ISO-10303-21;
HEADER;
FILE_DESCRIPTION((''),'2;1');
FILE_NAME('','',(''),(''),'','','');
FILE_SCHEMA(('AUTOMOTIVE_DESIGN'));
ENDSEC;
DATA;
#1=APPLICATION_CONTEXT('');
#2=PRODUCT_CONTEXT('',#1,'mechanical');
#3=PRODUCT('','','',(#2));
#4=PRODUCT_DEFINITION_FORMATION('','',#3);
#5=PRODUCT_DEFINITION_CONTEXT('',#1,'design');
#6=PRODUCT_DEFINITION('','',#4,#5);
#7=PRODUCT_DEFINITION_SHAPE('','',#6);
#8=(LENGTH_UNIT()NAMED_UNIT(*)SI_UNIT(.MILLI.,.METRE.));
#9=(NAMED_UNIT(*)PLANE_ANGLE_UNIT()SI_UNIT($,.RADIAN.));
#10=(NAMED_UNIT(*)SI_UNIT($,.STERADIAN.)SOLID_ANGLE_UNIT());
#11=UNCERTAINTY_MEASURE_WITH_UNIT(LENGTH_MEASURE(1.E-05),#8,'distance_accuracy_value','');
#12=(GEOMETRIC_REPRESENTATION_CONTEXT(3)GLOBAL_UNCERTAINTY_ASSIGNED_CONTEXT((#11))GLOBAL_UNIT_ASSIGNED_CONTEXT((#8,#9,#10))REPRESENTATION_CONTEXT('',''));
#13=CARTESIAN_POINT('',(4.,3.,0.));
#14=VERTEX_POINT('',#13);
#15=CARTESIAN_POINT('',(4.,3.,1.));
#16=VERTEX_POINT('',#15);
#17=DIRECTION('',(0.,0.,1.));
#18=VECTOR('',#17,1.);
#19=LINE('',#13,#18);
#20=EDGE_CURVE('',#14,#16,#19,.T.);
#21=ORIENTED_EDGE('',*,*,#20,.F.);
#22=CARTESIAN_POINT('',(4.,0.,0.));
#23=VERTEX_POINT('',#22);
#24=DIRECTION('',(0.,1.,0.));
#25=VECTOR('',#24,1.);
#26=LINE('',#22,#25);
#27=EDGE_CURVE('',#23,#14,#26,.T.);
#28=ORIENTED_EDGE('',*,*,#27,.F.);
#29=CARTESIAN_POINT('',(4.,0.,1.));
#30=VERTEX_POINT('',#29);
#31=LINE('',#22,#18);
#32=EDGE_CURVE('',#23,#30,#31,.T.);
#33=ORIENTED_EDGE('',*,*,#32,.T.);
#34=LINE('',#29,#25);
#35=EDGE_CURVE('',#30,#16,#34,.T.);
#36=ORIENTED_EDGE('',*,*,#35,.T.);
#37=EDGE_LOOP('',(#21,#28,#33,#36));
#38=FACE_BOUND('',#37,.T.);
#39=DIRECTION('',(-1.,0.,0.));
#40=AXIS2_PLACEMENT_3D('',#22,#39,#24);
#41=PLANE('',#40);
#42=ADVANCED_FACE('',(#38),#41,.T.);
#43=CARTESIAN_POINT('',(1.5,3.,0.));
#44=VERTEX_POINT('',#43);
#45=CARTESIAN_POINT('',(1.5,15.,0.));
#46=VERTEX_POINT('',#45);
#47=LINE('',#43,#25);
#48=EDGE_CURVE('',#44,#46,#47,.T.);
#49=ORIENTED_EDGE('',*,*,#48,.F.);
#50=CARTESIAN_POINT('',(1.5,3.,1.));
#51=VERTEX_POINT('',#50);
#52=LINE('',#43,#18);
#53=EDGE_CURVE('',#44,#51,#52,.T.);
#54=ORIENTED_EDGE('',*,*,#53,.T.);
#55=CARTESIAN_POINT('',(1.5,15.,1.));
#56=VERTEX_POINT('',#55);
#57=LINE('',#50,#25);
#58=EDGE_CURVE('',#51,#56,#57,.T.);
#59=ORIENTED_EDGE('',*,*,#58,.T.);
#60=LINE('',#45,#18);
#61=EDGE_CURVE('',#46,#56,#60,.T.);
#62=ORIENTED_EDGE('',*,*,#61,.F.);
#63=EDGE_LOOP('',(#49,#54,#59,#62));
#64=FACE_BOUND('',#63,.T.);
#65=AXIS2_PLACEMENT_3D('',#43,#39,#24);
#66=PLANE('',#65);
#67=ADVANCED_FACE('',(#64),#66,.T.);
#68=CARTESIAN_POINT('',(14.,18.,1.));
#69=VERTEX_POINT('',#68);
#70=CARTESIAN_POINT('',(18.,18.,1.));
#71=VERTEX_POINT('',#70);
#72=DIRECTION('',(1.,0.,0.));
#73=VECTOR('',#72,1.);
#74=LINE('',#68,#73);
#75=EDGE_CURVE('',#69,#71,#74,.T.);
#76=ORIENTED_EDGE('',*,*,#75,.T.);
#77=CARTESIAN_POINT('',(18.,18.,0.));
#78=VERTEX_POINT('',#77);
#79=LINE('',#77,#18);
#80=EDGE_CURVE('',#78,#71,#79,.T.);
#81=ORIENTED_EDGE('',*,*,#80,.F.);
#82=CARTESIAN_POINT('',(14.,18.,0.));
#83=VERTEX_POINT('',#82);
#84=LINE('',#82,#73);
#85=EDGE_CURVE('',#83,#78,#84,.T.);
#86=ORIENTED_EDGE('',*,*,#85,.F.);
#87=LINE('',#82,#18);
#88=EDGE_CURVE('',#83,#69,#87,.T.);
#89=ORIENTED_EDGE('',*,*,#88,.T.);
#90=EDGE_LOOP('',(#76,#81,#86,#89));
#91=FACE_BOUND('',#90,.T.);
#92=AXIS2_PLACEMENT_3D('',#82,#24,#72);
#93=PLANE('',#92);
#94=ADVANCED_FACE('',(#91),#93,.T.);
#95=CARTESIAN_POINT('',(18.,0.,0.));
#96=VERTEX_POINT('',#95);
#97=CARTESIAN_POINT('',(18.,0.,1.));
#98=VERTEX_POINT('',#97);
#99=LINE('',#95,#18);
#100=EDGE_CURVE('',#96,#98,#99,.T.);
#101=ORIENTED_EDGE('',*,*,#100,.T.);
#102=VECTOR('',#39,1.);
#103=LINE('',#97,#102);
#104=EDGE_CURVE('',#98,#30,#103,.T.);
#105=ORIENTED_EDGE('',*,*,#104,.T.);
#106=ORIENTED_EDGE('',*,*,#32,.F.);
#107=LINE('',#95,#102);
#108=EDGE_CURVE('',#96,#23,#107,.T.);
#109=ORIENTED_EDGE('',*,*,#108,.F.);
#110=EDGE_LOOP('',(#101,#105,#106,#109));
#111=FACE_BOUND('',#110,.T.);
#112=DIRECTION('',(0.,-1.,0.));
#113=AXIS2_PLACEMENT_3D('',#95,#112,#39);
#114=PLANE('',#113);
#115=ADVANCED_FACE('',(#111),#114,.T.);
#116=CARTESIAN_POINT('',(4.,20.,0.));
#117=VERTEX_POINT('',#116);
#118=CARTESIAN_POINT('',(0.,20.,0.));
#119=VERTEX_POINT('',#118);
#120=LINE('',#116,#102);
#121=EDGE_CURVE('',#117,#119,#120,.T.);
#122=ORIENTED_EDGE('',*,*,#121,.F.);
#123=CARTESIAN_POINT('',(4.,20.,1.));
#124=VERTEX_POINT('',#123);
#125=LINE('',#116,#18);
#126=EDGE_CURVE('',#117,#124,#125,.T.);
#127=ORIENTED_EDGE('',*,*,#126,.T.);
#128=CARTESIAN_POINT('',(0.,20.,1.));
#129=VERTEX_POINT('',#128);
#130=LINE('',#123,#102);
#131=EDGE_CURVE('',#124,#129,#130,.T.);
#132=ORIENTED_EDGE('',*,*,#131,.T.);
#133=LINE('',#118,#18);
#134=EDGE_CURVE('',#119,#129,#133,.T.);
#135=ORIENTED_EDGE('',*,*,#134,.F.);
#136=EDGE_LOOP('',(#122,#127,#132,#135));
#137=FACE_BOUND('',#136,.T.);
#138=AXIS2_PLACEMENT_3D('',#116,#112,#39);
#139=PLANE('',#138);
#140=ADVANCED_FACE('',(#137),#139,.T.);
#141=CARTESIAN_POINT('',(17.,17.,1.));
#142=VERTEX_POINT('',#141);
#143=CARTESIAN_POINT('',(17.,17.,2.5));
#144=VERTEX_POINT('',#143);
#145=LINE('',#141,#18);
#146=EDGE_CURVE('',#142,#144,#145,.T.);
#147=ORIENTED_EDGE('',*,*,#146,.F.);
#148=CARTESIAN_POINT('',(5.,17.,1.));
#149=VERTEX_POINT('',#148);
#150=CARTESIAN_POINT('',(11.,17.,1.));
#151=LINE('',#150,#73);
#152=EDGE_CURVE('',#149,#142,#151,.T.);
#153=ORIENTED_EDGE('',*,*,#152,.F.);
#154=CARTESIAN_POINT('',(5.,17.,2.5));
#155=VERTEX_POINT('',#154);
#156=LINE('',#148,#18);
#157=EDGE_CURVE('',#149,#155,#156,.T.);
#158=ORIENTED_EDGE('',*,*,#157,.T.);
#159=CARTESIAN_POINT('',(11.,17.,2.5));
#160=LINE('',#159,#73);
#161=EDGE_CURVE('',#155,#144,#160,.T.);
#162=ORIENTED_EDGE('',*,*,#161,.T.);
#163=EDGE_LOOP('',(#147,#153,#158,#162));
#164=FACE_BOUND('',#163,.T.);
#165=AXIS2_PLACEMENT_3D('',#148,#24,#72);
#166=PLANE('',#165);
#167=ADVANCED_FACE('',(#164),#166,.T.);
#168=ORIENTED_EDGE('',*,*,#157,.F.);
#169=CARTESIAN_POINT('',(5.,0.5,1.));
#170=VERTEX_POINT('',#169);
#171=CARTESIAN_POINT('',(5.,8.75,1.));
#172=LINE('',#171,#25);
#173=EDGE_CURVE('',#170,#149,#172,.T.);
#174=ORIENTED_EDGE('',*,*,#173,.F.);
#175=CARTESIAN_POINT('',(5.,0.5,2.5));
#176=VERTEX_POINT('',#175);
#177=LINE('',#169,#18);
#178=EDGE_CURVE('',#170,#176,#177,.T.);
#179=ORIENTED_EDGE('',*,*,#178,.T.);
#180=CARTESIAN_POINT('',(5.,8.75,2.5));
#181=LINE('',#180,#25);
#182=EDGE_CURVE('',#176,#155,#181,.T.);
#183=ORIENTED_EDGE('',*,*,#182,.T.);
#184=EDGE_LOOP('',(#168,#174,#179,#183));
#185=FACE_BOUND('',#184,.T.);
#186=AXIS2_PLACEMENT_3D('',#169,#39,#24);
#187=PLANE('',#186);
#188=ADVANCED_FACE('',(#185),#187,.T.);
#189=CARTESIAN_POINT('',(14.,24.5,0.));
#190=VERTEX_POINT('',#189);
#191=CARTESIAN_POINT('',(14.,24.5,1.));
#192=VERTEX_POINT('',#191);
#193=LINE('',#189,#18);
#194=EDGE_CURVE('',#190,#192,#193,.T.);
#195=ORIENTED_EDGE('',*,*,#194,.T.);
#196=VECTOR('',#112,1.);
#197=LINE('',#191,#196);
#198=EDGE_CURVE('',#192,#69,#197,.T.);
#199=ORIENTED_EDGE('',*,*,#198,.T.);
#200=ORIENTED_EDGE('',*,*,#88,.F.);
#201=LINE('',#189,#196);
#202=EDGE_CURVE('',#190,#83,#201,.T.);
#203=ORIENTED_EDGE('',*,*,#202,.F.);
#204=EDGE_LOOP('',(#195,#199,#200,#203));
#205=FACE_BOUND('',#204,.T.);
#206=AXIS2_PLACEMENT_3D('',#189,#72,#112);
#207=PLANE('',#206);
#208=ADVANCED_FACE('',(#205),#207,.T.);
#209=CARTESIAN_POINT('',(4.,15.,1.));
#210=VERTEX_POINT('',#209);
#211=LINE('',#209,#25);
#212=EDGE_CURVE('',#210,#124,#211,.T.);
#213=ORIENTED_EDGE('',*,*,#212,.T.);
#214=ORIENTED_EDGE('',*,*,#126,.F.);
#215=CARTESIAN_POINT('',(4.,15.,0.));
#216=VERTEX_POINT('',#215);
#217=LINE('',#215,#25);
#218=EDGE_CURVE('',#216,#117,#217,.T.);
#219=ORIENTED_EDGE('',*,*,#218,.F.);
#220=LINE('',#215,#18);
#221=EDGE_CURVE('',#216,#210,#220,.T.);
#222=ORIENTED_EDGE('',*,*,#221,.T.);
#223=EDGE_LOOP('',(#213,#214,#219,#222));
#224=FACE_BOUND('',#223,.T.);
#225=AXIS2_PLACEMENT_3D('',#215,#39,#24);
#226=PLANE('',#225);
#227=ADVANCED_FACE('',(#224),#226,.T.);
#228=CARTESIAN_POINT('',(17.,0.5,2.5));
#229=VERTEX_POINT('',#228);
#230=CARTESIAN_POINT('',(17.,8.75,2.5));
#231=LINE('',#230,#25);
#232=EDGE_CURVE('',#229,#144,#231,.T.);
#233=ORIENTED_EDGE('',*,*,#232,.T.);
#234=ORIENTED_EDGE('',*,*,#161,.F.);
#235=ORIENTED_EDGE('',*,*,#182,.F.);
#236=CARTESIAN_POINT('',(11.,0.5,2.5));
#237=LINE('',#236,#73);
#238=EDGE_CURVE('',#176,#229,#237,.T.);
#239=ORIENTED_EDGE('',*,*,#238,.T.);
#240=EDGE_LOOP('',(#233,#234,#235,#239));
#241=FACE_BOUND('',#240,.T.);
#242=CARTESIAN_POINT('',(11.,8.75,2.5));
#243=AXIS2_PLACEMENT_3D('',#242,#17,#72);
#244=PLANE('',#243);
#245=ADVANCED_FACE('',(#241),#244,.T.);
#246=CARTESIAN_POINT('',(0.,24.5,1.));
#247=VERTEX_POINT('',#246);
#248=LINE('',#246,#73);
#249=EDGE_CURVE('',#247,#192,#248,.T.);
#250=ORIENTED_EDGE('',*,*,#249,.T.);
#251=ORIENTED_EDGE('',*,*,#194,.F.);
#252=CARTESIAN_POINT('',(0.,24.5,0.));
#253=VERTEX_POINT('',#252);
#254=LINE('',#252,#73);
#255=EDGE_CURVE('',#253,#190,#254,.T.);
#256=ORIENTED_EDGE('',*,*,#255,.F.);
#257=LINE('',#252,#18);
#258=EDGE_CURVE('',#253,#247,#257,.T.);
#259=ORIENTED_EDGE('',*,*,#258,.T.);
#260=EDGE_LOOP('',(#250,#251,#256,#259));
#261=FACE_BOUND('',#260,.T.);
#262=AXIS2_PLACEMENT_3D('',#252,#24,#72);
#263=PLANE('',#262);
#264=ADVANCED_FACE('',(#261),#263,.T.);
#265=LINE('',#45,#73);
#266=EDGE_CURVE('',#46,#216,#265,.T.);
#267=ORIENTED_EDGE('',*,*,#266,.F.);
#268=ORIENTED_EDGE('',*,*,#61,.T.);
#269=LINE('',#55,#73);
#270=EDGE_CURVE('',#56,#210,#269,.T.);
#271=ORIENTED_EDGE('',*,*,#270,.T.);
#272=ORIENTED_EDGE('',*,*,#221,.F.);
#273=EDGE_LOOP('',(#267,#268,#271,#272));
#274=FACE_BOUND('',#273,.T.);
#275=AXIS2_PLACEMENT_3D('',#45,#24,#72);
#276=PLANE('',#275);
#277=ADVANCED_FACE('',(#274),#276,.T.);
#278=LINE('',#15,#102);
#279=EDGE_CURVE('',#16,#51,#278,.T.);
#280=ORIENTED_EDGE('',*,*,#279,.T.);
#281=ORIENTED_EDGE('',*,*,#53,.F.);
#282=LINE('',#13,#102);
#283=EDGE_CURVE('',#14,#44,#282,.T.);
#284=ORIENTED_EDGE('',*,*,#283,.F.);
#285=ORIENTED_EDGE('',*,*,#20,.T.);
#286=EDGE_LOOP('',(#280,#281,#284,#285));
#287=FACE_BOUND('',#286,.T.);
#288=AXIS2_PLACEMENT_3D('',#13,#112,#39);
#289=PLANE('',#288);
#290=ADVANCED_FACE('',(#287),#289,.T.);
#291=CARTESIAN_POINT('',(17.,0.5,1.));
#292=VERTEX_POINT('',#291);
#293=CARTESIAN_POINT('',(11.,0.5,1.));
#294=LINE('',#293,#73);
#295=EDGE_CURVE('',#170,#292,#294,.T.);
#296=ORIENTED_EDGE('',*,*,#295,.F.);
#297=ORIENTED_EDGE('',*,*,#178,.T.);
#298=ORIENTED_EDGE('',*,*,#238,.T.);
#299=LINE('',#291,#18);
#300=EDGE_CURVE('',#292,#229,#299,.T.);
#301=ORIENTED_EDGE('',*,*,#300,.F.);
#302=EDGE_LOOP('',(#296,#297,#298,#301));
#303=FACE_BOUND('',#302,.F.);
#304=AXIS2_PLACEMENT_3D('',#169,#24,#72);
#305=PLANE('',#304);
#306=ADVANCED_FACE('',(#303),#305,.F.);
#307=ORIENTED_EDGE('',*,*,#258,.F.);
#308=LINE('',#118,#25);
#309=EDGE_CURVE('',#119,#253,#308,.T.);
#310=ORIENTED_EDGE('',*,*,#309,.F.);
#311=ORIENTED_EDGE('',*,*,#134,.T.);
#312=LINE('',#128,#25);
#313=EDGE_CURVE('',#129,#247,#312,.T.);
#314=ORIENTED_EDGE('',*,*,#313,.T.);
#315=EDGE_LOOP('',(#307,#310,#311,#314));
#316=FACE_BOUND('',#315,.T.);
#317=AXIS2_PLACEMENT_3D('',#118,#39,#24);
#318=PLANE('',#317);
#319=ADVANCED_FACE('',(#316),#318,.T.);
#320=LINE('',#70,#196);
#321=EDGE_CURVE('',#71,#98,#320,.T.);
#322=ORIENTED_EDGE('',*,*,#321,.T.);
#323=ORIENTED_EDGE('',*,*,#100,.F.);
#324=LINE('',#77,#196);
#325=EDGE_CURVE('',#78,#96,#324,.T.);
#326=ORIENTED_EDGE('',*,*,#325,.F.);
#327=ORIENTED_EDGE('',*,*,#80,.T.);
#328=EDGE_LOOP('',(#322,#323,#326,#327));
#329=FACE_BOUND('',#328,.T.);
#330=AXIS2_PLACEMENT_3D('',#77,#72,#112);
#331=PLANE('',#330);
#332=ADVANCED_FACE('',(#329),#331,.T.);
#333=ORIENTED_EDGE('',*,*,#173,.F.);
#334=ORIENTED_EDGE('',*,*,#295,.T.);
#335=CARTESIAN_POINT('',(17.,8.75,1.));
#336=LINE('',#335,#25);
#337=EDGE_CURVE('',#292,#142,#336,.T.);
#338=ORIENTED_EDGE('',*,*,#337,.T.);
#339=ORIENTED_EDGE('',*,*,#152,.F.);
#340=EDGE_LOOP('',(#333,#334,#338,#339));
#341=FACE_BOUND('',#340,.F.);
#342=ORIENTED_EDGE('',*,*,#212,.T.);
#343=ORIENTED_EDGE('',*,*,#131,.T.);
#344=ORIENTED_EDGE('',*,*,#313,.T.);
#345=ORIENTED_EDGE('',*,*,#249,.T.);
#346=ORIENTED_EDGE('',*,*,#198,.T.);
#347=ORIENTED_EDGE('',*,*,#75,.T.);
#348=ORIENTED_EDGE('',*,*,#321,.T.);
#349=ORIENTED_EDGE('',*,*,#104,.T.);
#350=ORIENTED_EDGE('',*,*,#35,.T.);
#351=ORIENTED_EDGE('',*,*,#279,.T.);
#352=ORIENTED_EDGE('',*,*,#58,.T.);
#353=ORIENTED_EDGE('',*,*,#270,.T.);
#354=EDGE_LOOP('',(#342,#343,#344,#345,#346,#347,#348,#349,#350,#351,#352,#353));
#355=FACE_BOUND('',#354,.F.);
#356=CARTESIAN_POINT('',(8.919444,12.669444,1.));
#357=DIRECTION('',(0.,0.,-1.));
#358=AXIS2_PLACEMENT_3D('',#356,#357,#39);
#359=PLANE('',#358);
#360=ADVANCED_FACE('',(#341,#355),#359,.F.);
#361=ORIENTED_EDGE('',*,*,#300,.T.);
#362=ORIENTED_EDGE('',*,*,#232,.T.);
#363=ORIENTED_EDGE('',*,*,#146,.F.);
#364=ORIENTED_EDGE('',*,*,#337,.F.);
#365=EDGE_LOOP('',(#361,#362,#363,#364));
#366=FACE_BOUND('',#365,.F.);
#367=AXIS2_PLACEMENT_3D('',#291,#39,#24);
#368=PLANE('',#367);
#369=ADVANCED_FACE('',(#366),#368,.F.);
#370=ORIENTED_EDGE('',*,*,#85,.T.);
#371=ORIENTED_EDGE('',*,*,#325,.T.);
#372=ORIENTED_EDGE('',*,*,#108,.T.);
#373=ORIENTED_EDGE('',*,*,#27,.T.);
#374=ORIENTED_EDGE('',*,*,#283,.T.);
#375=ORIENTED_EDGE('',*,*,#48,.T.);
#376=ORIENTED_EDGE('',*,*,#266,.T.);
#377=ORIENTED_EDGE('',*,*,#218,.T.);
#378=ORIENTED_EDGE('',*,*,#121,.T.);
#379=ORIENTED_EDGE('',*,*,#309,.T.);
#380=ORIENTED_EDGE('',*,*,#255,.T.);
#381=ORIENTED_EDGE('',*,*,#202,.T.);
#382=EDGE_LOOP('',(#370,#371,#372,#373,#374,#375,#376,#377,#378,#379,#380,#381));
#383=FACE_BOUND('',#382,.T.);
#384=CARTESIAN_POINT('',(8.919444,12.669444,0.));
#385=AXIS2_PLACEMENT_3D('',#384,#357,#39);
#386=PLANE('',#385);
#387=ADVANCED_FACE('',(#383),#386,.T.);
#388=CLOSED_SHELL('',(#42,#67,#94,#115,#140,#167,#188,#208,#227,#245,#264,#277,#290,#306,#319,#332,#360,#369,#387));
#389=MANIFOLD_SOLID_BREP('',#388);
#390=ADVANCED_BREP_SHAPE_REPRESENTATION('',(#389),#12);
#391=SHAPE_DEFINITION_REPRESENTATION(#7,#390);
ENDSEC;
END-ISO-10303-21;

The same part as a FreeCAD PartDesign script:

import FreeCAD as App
import Part
import Sketcher
from FreeCAD import Vector

doc = App.newDocument("Part")
body = doc.addObject("PartDesign::Body", "Body")

sketch1 = body.newObject("Sketcher::SketchObject", "Sketch")
sketch1.AttachmentSupport = (doc.getObject("XY_Plane"), [""])
sketch1.MapMode = "FlatFace"
sketch1.addGeometry(Part.LineSegment(Vector(14, 24.5, 0), Vector(0, 24.5, 0)), False)
sketch1.addGeometry(Part.LineSegment(Vector(0, 24.5, 0), Vector(0, 20, 0)), False)
sketch1.addGeometry(Part.LineSegment(Vector(0, 20, 0), Vector(4, 20, 0)), False)
sketch1.addGeometry(Part.LineSegment(Vector(4, 20, 0), Vector(4, 15, 0)), False)
sketch1.addGeometry(Part.LineSegment(Vector(4, 15, 0), Vector(1.5, 15, 0)), False)
sketch1.addGeometry(Part.LineSegment(Vector(1.5, 15, 0), Vector(1.5, 3, 0)), False)
sketch1.addGeometry(Part.LineSegment(Vector(1.5, 3, 0), Vector(4, 3, 0)), False)
sketch1.addGeometry(Part.LineSegment(Vector(4, 3, 0), Vector(4, 0, 0)), False)
sketch1.addGeometry(Part.LineSegment(Vector(4, 0, 0), Vector(18, 0, 0)), False)
sketch1.addGeometry(Part.LineSegment(Vector(18, 0, 0), Vector(18, 18, 0)), False)
sketch1.addGeometry(Part.LineSegment(Vector(18, 18, 0), Vector(14, 18, 0)), False)
sketch1.addGeometry(Part.LineSegment(Vector(14, 18, 0), Vector(14, 24.5, 0)), False)
sketch1.addConstraint(Sketcher.Constraint("Coincident", 0, 2, 1, 1))
sketch1.addConstraint(Sketcher.Constraint("Coincident", 1, 2, 2, 1))
sketch1.addConstraint(Sketcher.Constraint("Coincident", 2, 2, 3, 1))
sketch1.addConstraint(Sketcher.Constraint("Coincident", 3, 2, 4, 1))
sketch1.addConstraint(Sketcher.Constraint("Coincident", 4, 2, 5, 1))
sketch1.addConstraint(Sketcher.Constraint("Coincident", 5, 2, 6, 1))
sketch1.addConstraint(Sketcher.Constraint("Coincident", 6, 2, 7, 1))
sketch1.addConstraint(Sketcher.Constraint("Coincident", 7, 2, 8, 1))
sketch1.addConstraint(Sketcher.Constraint("Coincident", 8, 2, 9, 1))
sketch1.addConstraint(Sketcher.Constraint("Coincident", 9, 2, 10, 1))
sketch1.addConstraint(Sketcher.Constraint("Coincident", 10, 2, 11, 1))
sketch1.addConstraint(Sketcher.Constraint("Coincident", 11, 2, 0, 1))
sketch1.addConstraint(Sketcher.Constraint("Horizontal", 0))
sketch1.addConstraint(Sketcher.Constraint("Vertical", 1))
sketch1.addConstraint(Sketcher.Constraint("Horizontal", 2))
sketch1.addConstraint(Sketcher.Constraint("Vertical", 3))
sketch1.addConstraint(Sketcher.Constraint("Horizontal", 4))
sketch1.addConstraint(Sketcher.Constraint("Vertical", 5))
sketch1.addConstraint(Sketcher.Constraint("Horizontal", 6))
sketch1.addConstraint(Sketcher.Constraint("Vertical", 7))
sketch1.addConstraint(Sketcher.Constraint("Horizontal", 8))
sketch1.addConstraint(Sketcher.Constraint("Vertical", 9))
sketch1.addConstraint(Sketcher.Constraint("Horizontal", 10))
sketch1.addConstraint(Sketcher.Constraint("Vertical", 11))
sketch1.addConstraint(Sketcher.Constraint("PointOnObject", 0, 2, -2))
sketch1.addConstraint(Sketcher.Constraint("PointOnObject", 7, 2, -1))
sketch1.addConstraint(Sketcher.Constraint("Vertical", 3, 2, 6, 2))
sketch1.addConstraint(Sketcher.Constraint("Equal", 0, 8))
sketch1.addConstraint(Sketcher.Constraint("DistanceX", 0, 2, 0, 1, 14.0))
sketch1.addConstraint(Sketcher.Constraint("DistanceX", 2, 1, 2, 2, 4.0))
sketch1.addConstraint(Sketcher.Constraint("DistanceY", 3, 2, 3, 1, 5.0))
sketch1.addConstraint(Sketcher.Constraint("DistanceY", 5, 2, 5, 1, 12.0))
sketch1.addConstraint(Sketcher.Constraint("DistanceY", 7, 2, 7, 1, 3.0))
sketch1.addConstraint(Sketcher.Constraint("DistanceY", 9, 1, 9, 2, 18.0))
sketch1.addConstraint(Sketcher.Constraint("DistanceX", 4, 2, 4, 1, 2.5))
sketch1.addConstraint(Sketcher.Constraint("DistanceY", 1, 2, 1, 1, 4.5))
pad1 = body.newObject("PartDesign::Pad", "Pad")
pad1.Profile = sketch1
pad1.Length = 1

sketch2 = body.newObject("Sketcher::SketchObject", "Sketch001")
sketch2.AttachmentSupport = (doc.getObject("XY_Plane"), [""])
sketch2.MapMode = "FlatFace"
sketch2.AttachmentOffset = App.Placement(Vector(0, 0, 1), App.Rotation())
sketch2.addGeometry(Part.LineSegment(Vector(5, 17, 0), Vector(5, 0, 0)), False)
sketch2.addGeometry(Part.LineSegment(Vector(5, 0, 0), Vector(17, 0, 0)), False)
sketch2.addGeometry(Part.LineSegment(Vector(17, 0, 0), Vector(17, 17, 0)), False)
sketch2.addGeometry(Part.LineSegment(Vector(17, 17, 0), Vector(5, 17, 0)), False)
sketch2.addConstraint(Sketcher.Constraint("Coincident", 0, 2, 1, 1))
sketch2.addConstraint(Sketcher.Constraint("Coincident", 1, 2, 2, 1))
sketch2.addConstraint(Sketcher.Constraint("Coincident", 2, 2, 3, 1))
sketch2.addConstraint(Sketcher.Constraint("Coincident", 3, 2, 0, 1))
sketch2.addConstraint(Sketcher.Constraint("Vertical", 0))
sketch2.addConstraint(Sketcher.Constraint("Horizontal", 1))
sketch2.addConstraint(Sketcher.Constraint("Vertical", 2))
sketch2.addConstraint(Sketcher.Constraint("Horizontal", 3))
sketch2.addConstraint(Sketcher.Constraint("DistanceX", 1, 1, 1, 2, 12.0))
sketch2.addConstraint(Sketcher.Constraint("DistanceY", 0, 2, 0, 1, 16.5))
sketch2.addConstraint(Sketcher.Constraint("DistanceX", -1, 1, 0, 2, 5.0))
sketch2.addConstraint(Sketcher.Constraint("DistanceY", -1, 1, 2, 2, 17.0))
pad2 = body.newObject("PartDesign::Pad", "Pad001")
pad2.Profile = sketch2
pad2.Length = 1.5

doc.recompute()
